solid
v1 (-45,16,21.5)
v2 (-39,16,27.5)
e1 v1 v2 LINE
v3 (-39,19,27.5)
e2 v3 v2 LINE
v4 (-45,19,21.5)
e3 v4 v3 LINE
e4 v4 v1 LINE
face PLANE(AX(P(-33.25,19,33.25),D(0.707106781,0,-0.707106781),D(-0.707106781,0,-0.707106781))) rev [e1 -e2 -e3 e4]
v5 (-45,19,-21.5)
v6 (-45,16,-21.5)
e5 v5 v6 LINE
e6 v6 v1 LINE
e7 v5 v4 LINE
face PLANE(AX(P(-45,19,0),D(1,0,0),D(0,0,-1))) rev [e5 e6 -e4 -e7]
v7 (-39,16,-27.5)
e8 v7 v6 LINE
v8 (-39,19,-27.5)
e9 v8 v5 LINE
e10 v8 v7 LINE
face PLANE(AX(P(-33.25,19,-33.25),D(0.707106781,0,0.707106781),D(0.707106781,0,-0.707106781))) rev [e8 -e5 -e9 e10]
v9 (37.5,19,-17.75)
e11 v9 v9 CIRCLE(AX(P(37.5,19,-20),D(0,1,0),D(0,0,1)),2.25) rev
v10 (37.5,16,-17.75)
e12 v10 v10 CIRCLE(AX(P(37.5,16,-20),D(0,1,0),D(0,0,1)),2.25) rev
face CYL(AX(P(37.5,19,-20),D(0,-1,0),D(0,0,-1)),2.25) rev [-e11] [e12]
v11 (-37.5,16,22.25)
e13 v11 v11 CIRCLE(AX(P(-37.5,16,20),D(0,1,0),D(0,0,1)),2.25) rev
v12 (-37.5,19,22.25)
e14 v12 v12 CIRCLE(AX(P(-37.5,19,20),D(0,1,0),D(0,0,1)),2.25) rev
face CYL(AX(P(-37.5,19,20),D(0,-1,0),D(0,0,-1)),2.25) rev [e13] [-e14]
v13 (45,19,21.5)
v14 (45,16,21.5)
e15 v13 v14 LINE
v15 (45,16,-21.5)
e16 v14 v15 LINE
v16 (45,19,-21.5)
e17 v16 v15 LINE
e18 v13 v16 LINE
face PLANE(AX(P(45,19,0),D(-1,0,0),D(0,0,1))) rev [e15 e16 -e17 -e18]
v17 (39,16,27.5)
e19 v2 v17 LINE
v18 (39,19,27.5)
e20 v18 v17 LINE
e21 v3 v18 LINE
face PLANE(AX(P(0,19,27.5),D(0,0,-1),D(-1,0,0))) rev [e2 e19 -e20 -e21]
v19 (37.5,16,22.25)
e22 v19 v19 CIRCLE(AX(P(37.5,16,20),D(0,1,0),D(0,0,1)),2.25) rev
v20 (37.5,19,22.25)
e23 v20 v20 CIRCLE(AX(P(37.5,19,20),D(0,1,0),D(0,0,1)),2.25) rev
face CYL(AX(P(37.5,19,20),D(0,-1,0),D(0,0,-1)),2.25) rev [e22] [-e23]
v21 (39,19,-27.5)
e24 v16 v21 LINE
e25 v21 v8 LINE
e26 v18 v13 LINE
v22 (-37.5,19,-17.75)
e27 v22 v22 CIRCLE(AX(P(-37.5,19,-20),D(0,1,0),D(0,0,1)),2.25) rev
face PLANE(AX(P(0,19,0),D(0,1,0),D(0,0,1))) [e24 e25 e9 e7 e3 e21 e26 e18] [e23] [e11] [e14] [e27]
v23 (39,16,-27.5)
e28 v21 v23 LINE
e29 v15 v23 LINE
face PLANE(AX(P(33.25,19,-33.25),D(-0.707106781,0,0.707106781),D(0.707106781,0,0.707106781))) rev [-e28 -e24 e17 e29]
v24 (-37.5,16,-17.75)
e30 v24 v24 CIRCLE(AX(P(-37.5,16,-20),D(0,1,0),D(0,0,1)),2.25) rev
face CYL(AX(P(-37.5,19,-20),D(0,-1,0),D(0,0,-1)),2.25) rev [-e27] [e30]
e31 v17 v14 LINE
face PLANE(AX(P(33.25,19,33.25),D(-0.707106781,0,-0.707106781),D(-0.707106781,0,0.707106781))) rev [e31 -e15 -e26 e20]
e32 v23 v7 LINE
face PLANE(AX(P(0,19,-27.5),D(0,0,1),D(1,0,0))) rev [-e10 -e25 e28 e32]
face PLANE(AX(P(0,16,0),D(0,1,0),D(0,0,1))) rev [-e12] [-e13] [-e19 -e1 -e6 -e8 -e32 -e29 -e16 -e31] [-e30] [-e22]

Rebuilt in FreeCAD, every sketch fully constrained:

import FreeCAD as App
import Part
import Sketcher
Q = App.Units.Quantity


def edges_at(feature, points):
    """Names of the edges that pass closest to the given points."""
    edges = feature.Shape.Edges
    near = lambda p: min(range(len(edges)), key=lambda i: edges[i].distToShape(Part.Vertex(*p))[0])
    return sorted({f"Edge{near(p) + 1}" for p in points})


def add_polygon(sketch, points):
    """Adds a closed chain of lines whose ends are joined by coincident constraints."""
    first, n = sketch.GeometryCount, len(points)
    for a, b in zip(points, points[1:] + points[:1]):
        sketch.addGeometry(Part.LineSegment(App.Vector(*a, 0), App.Vector(*b, 0)), False)
    for i in range(n):
        sketch.addConstraint(Sketcher.Constraint("Coincident", first + i, 2, first + (i + 1) % n, 1))

doc = App.newDocument("Part")
body = doc.addObject("PartDesign::Body", "Body")

sketch1 = body.newObject("Sketcher::SketchObject", "Sketch")
sketch1.AttachmentSupport = (doc.getObject("XZ_Plane"), [""])
sketch1.MapMode = "FlatFace"
add_polygon(sketch1, [(-45, -28), (-45, 28), (45, 28), (45, -28)])
sketch1.addConstraint(Sketcher.Constraint("Vertical", 0))
sketch1.addConstraint(Sketcher.Constraint("Horizontal", 1))
sketch1.addConstraint(Sketcher.Constraint("Vertical", 2))
sketch1.addConstraint(Sketcher.Constraint("Horizontal", 3))
sketch1.addConstraint(Sketcher.Constraint("Symmetric", 0, 2, 2, 2, -1, 1))
sketch1.addConstraint(Sketcher.Constraint("DistanceX", 1, 1, 1, 2, Q("90 mm")))
sketch1.addConstraint(Sketcher.Constraint("DistanceY", 0, 1, 0, 2, Q("55 mm")))
pad1 = body.newObject("PartDesign::Pad", "Pad")
pad1.Profile = sketch1
pad1.Length = 16
pad1.Reversed = True

sketch2 = body.newObject("Sketcher::SketchObject", "Sketch001")
sketch2.AttachmentSupport = (doc.getObject("YZ_Plane"), [""])
sketch2.MapMode = "FlatFace"
sketch2.AttachmentOffset = App.Placement(App.Vector(0, 0, -45), App.Rotation())
add_polygon(sketch2, [(14.2, 13), (16, 11.2), (16, -11.2), (14.2, -13), (14.2, -17.5), (1.8, -17.5), (1.8, -13), (0, -11.2), (0, 11.2), (1.8, 13), (1.8, 17.5), (14.2, 17.5)])
sketch2.addConstraint(Sketcher.Constraint("Vertical", 1))
sketch2.addConstraint(Sketcher.Constraint("Vertical", 3))
sketch2.addConstraint(Sketcher.Constraint("Horizontal", 4))
sketch2.addConstraint(Sketcher.Constraint("Vertical", 5))
sketch2.addConstraint(Sketcher.Constraint("Vertical", 7))
sketch2.addConstraint(Sketcher.Constraint("Vertical", 9))
sketch2.addConstraint(Sketcher.Constraint("Horizontal", 10))
sketch2.addConstraint(Sketcher.Constraint("Vertical", 11))
sketch2.addConstraint(Sketcher.Constraint("Symmetric", 6, 2, 7, 2, -1, 1))
sketch2.addConstraint(Sketcher.Constraint("Symmetric", 5, 2, 8, 2, -1))
sketch2.addConstraint(Sketcher.Constraint("Symmetric", 3, 2, 10, 2, -1))
sketch2.addConstraint(Sketcher.Constraint("Perpendicular", 0, 2))
sketch2.addConstraint(Sketcher.Constraint("Perpendicular", 2, 6))
sketch2.addConstraint(Sketcher.Constraint("Perpendicular", 6, 8))
sketch2.addConstraint(Sketcher.Constraint("Horizontal", 2, 2, 5, 2))
sketch2.addConstraint(Sketcher.Constraint("Horizontal", 1, 2, 6, 2))
sketch2.addConstraint(Sketcher.Constraint("Horizontal", 0, 2, 7, 2))
sketch2.addConstraint(Sketcher.Constraint("DistanceX", 4, 2, 4, 1, Q("12.5 mm")))
sketch2.addConstraint(Sketcher.Constraint("DistanceY", 1, 2, 1, 1, Q("22.5 mm")))
sketch2.addConstraint(Sketcher.Constraint("DistanceY", 3, 2, 3, 1, Q("4.5 mm")))
sketch2.addConstraint(Sketcher.Constraint("DistanceX", -1, 1, 0, 2, Q("16 mm")))
pocket1 = body.newObject("PartDesign::Pocket", "Pocket")
pocket1.Profile = sketch2
pocket1.Length = 4
pocket1.Reversed = True

sketch3 = body.newObject("Sketcher::SketchObject", "Sketch002")
sketch3.AttachmentSupport = (doc.getObject("YZ_Plane"), [""])
sketch3.MapMode = "FlatFace"
sketch3.AttachmentOffset = App.Placement(App.Vector(0, 0, -41), App.Rotation())
add_polygon(sketch3, [(14, -10), (2, -10), (2, 10), (14, 10)])
sketch3.addConstraint(Sketcher.Constraint("Horizontal", 0))
sketch3.addConstraint(Sketcher.Constraint("Vertical", 1))
sketch3.addConstraint(Sketcher.Constraint("Horizontal", 2))
sketch3.addConstraint(Sketcher.Constraint("Vertical", 3))
sketch3.addConstraint(Sketcher.Constraint("DistanceX", 0, 2, 0, 1, Q("13 mm")))
sketch3.addConstraint(Sketcher.Constraint("DistanceY", 1, 1, 1, 2, Q("20 mm")))
sketch3.addConstraint(Sketcher.Constraint("DistanceY", 0, 2, -1, 1, Q("10 mm")))
sketch3.addConstraint(Sketcher.Constraint("DistanceX", -1, 1, 0, 2, Q("1.5 mm")))
pocket2 = body.newObject("PartDesign::Pocket", "Pocket001")
pocket2.Profile = sketch3
pocket2.Length = 20
pocket2.Reversed = True
doc.recompute()

chamfer = body.newObject("PartDesign::Chamfer", "Chamfer")
chamfer.Base = (pocket2, edges_at(pocket2, [
    (45, 8, 27.5),
    (-45, 8, 27.5),
    (-45, 8, -27.5),
    (45, 8, -27.5),
]))
chamfer.Size = 6

sketch4 = body.newObject("Sketcher::SketchObject", "Sketch003")
sketch4.AttachmentSupport = (doc.getObject("XZ_Plane"), [""])
sketch4.MapMode = "FlatFace"
sketch4.AttachmentOffset = App.Placement(App.Vector(0, 0, -16), App.Rotation())
sketch4.addGeometry(Part.Circle(App.Vector(0, 0, 0), App.Vector(0, 0, 1), 2.2), False)
sketch4.addGeometry(Part.Circle(App.Vector(37.5, -20, 0), App.Vector(0, 0, 1), 2.2), False)
sketch4.addGeometry(Part.Circle(App.Vector(-37.5, 20, 0), App.Vector(0, 0, 1), 2.2), False)
sketch4.addGeometry(Part.Circle(App.Vector(-37.5, -20, 0), App.Vector(0, 0, 1), 2.2), False)
sketch4.addGeometry(Part.Circle(App.Vector(37.5, 20, 0), App.Vector(0, 0, 1), 2.2), False)
sketch4.addConstraint(Sketcher.Constraint("Coincident", 0, 3, -1, 1))
sketch4.addConstraint(Sketcher.Constraint("Equal", 0, 1))
sketch4.addConstraint(Sketcher.Constraint("Equal", 1, 2))
sketch4.addConstraint(Sketcher.Constraint("Equal", 2, 3))
sketch4.addConstraint(Sketcher.Constraint("Equal", 3, 4))
sketch4.addConstraint(Sketcher.Constraint("Symmetric", 1, 3, 2, 3, -1, 1))
sketch4.addConstraint(Sketcher.Constraint("Symmetric", 3, 3, 4, 3, -1, 1))
sketch4.addConstraint(Sketcher.Constraint("Symmetric", 1, 3, 3, 3, -2))
sketch4.addConstraint(Sketcher.Constraint("Diameter", 0, Q("4.5 mm")))
sketch4.addConstraint(Sketcher.Constraint("DistanceY", 1, 3, -1, 1, Q("20 mm")))
sketch4.addConstraint(Sketcher.Constraint("DistanceX", 2, 3, 1, 3, Q("75 mm")))
doc.recompute()
hole = body.newObject("PartDesign::Hole", "Hole")
hole.Profile = sketch4
hole.ThreadType = "None"
hole.Diameter = 4.5
hole.DepthType = "ThroughAll"
hole.Reversed = True

sketch5 = body.newObject("Sketcher::SketchObject", "Sketch004")
sketch5.AttachmentSupport = (doc.getObject("YZ_Plane"), [""])
sketch5.MapMode = "FlatFace"
sketch5.AttachmentOffset = App.Placement(App.Vector(0, 0, 45), App.Rotation())
add_polygon(sketch5, [(12, 14), (4, 14), (4, -14), (12, -14)])
sketch5.addConstraint(Sketcher.Constraint("Horizontal", 0))
sketch5.addConstraint(Sketcher.Constraint("Vertical", 1))
sketch5.addConstraint(Sketcher.Constraint("Horizontal", 2))
sketch5.addConstraint(Sketcher.Constraint("Vertical", 3))
sketch5.addConstraint(Sketcher.Constraint("DistanceX", 0, 2, 0, 1, Q("8.5 mm")))
sketch5.addConstraint(Sketcher.Constraint("DistanceY", 1, 2, 1, 1, Q("27.5 mm")))
sketch5.addConstraint(Sketcher.Constraint("DistanceX", -1, 1, 0, 2, Q("3.75 mm")))
sketch5.addConstraint(Sketcher.Constraint("DistanceY", -1, 1, 0, 2, Q("13.75 mm")))
pocket3 = body.newObject("PartDesign::Pocket", "Pocket002")
pocket3.Profile = sketch5
pocket3.Length = 3

sketch6 = body.newObject("Sketcher::SketchObject", "Sketch005")
sketch6.AttachmentSupport = (doc.getObject("YZ_Plane"), [""])
sketch6.MapMode = "FlatFace"
sketch6.AttachmentOffset = App.Placement(App.Vector(0, 0, 42), App.Rotation())
add_polygon(sketch6, [(12, 8), (4, 8), (4, -8), (12, -8)])
sketch6.addConstraint(Sketcher.Constraint("Horizontal", 0))
sketch6.addConstraint(Sketcher.Constraint("Vertical", 1))
sketch6.addConstraint(Sketcher.Constraint("Horizontal", 2))
sketch6.addConstraint(Sketcher.Constraint("Vertical", 3))
sketch6.addConstraint(Sketcher.Constraint("DistanceX", 0, 2, 0, 1, Q("8.5 mm")))
sketch6.addConstraint(Sketcher.Constraint("DistanceY", 1, 2, 1, 1, Q("16.5 mm")))
sketch6.addConstraint(Sketcher.Constraint("DistanceX", -1, 1, 0, 2, Q("3.75 mm")))
sketch6.addConstraint(Sketcher.Constraint("DistanceY", -1, 1, 0, 2, Q("8.25 mm")))
pocket4 = body.newObject("PartDesign::Pocket", "Pocket003")
pocket4.Profile = sketch6
pocket4.Length = 12

sketch7 = body.newObject("Sketcher::SketchObject", "Sketch006")
sketch7.AttachmentSupport = (doc.getObject("XZ_Plane"), [""])
sketch7.MapMode = "FlatFace"
sketch7.AttachmentOffset = App.Placement(App.Vector(0, 0, -16), App.Rotation())
add_polygon(sketch7, [(30, 12.5), (40, 12.5), (40, -12.5), (30, -12.5), (30, -22.5), (-30, -22.5), (-30, -12.5), (-36, -12.5), (-36, 12.5), (-30, 12.5), (-30, 22.5), (30, 22.5)])
sketch7.addGeometry(Part.Circle(App.Vector(0, 0, 0), App.Vector(0, 0, 1), 2.2), False)
sketch7.addConstraint(Sketcher.Constraint("Horizontal", 0))
sketch7.addConstraint(Sketcher.Constraint("Vertical", 1))
sketch7.addConstraint(Sketcher.Constraint("Horizontal", 2))
sketch7.addConstraint(Sketcher.Constraint("Vertical", 3))
sketch7.addConstraint(Sketcher.Constraint("Horizontal", 4))
sketch7.addConstraint(Sketcher.Constraint("Vertical", 5))
sketch7.addConstraint(Sketcher.Constraint("Horizontal", 6))
sketch7.addConstraint(Sketcher.Constraint("Vertical", 7))
sketch7.addConstraint(Sketcher.Constraint("Horizontal", 8))
sketch7.addConstraint(Sketcher.Constraint("Vertical", 9))
sketch7.addConstraint(Sketcher.Constraint("Horizontal", 10))
sketch7.addConstraint(Sketcher.Constraint("Vertical", 11))
sketch7.addConstraint(Sketcher.Constraint("Coincident", 12, 3, -1, 1))
sketch7.addConstraint(Sketcher.Constraint("Symmetric", 2, 2, 8, 2, -1, 1))
sketch7.addConstraint(Sketcher.Constraint("Symmetric", 4, 2, 10, 2, -1, 1))
sketch7.addConstraint(Sketcher.Constraint("Symmetric", 2, 2, 5, 2, -2))
sketch7.addConstraint(Sketcher.Constraint("Horizontal", 0, 2, 7, 2))
sketch7.addConstraint(Sketcher.Constraint("Equal", 2, 3))
sketch7.addConstraint(Sketcher.Constraint("Diameter", 12, Q("4.5 mm")))
sketch7.addConstraint(Sketcher.Constraint("DistanceX", 0, 1, 0, 2, Q("10 mm")))
sketch7.addConstraint(Sketcher.Constraint("DistanceX", 4, 2, 4, 1, Q("60 mm")))
sketch7.addConstraint(Sketcher.Constraint("DistanceX", 6, 2, 6, 1, Q("6 mm")))
sketch7.addConstraint(Sketcher.Constraint("DistanceY", 1, 2, 1, 1, Q("25 mm")))
pocket5 = body.newObject("PartDesign::Pocket", "Pocket004")
pocket5.Profile = sketch7
pocket5.Type = "ThroughAll"
pocket5.Reversed = True
doc.recompute()

chamfer2 = body.newObject("PartDesign::Chamfer", "Chamfer001")
chamfer2.Base = (pocket5, edges_at(pocket5, [
    (30, 8, -12.5),
    (30, 8, 12.5),
    (-30, 8, 12.5),
    (-30, 8, -12.5),
]))
chamfer2.Size = 5
body2 = doc.addObject("PartDesign::Body", "Body001")

sketch8 = body2.newObject("Sketcher::SketchObject", "Sketch007")
sketch8.AttachmentSupport = (doc.getObject("XZ_Plane001"), [""])
sketch8.MapMode = "FlatFace"
sketch8.AttachmentOffset = App.Placement(App.Vector(0, 0, -16), App.Rotation())
add_polygon(sketch8, [(-45, 21.5), (-39, 27.5), (39, 27.5), (45, 21.5), (45, -21.5), (39, -27.5), (-39, -27.5), (-45, -21.5)])
sketch8.addGeometry(Part.Circle(App.Vector(-37.5, 20, 0), App.Vector(0, 0, 1), 2.2), False)
sketch8.addGeometry(Part.Circle(App.Vector(37.5, 20, 0), App.Vector(0, 0, 1), 2.2), False)
sketch8.addGeometry(Part.Circle(App.Vector(-37.5, -20, 0), App.Vector(0, 0, 1), 2.2), False)
sketch8.addGeometry(Part.Circle(App.Vector(37.5, -20, 0), App.Vector(0, 0, 1), 2.2), False)
sketch8.addConstraint(Sketcher.Constraint("Horizontal", 1))
sketch8.addConstraint(Sketcher.Constraint("Vertical", 3))
sketch8.addConstraint(Sketcher.Constraint("Horizontal", 5))
sketch8.addConstraint(Sketcher.Constraint("Vertical", 7))
sketch8.addConstraint(Sketcher.Constraint("Equal", 8, 9))
sketch8.addConstraint(Sketcher.Constraint("Equal", 9, 10))
sketch8.addConstraint(Sketcher.Constraint("Equal", 10, 11))
sketch8.addConstraint(Sketcher.Constraint("Symmetric", 9, 3, 10, 3, -1, 1))
sketch8.addConstraint(Sketcher.Constraint("Symmetric", 8, 3, 11, 3, -1, 1))
sketch8.addConstraint(Sketcher.Constraint("Symmetric", 0, 2, 4, 2, -1, 1))
sketch8.addConstraint(Sketcher.Constraint("Symmetric", 2, 2, 6, 2, -1, 1))
sketch8.addConstraint(Sketcher.Constraint("Symmetric", 8, 3, 9, 3, -2))
sketch8.addConstraint(Sketcher.Constraint("Perpendicular", 0, 2))
sketch8.addConstraint(Sketcher.Constraint("Perpendicular", 2, 4))
sketch8.addConstraint(Sketcher.Constraint("Perpendicular", 4, 6))
sketch8.addConstraint(Sketcher.Constraint("Horizontal", 3, 2, 6, 2))
sketch8.addConstraint(Sketcher.Constraint("Vertical", 1, 2, 4, 2))
sketch8.addConstraint(Sketcher.Constraint("Diameter", 8, Q("4.5 mm")))
sketch8.addConstraint(Sketcher.Constraint("DistanceX", 1, 1, 1, 2, Q("78 mm")))
sketch8.addConstraint(Sketcher.Constraint("DistanceY", 3, 2, 3, 1, Q("43 mm")))
sketch8.addConstraint(Sketcher.Constraint("DistanceY", -1, 1, 8, 3, Q("20 mm")))
sketch8.addConstraint(Sketcher.Constraint("DistanceX", -1, 1, 2, 2, Q("45 mm")))
sketch8.addConstraint(Sketcher.Constraint("DistanceX", 8, 3, 9, 3, Q("75 mm")))
pad2 = body2.newObject("PartDesign::Pad", "Pad001")
pad2.Profile = sketch8
pad2.Length = 3
pad2.Reversed = True
body.Visibility = False

doc.recompute()
